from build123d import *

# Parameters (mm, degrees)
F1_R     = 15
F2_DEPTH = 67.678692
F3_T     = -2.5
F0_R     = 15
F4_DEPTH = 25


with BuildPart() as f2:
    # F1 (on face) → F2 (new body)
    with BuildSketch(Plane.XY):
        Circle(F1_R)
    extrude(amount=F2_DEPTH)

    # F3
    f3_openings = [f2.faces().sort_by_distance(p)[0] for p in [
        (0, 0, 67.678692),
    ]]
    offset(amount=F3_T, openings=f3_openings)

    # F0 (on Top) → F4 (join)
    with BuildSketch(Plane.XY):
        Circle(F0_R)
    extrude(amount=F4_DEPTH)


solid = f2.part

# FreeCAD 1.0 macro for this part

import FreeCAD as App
import Part
import Sketcher


def faces_at(feature, points):
    """Names of the faces that lie closest to the given points."""
    faces = feature.Shape.Faces
    near = lambda p: min(range(len(faces)), key=lambda i: faces[i].distToShape(Part.Vertex(*p))[0])
    return sorted({f"Face{near(p) + 1}" for p in points})

doc = App.newDocument("Part")
body = doc.addObject("PartDesign::Body", "Body")

# Sketch on XY plane
sketch1 = doc.addObject("Sketcher::SketchObject", "Sketch")
body.addObject(sketch1)
sketch1.AttachmentSupport = (doc.XY_Plane, [""])
sketch1.MapMode = "FlatFace"
sketch1.addGeometry(Part.Circle(App.Vector(0, 0, 0), App.Vector(0, 0, 1), 15), False)
sketch1.addConstraint(Sketcher.Constraint("Coincident", 0, 3, -1, 1))
sketch1.addConstraint(Sketcher.Constraint("Diameter", 0, 30.0))
pad1 = doc.addObject("PartDesign::Pad", "Pad")
body.addObject(pad1)
pad1.Profile = sketch1
pad1.Length = 67.678692
doc.recompute()

thickness = doc.addObject("PartDesign::Thickness", "Thickness")
body.addObject(thickness)
thickness.Base = (pad1, faces_at(pad1, [(0, 0, 67.679)]))
thickness.Value = 2.5
thickness.Reversed = True
thickness.Join = "Arc"

# Sketch on XY plane
sketch2 = doc.addObject("Sketcher::SketchObject", "Sketch001")
body.addObject(sketch2)
sketch2.AttachmentSupport = (doc.XY_Plane, [""])
sketch2.MapMode = "FlatFace"
sketch2.addGeometry(Part.Circle(App.Vector(0, 0, 0), App.Vector(0, 0, 1), 15), False)
sketch2.addConstraint(Sketcher.Constraint("Coincident", 0, 3, -1, 1))
sketch2.addConstraint(Sketcher.Constraint("Diameter", 0, 30.0))
pad2 = doc.addObject("PartDesign::Pad", "Pad001")
body.addObject(pad2)
pad2.Profile = sketch2
pad2.Length = 25

doc.recompute()
